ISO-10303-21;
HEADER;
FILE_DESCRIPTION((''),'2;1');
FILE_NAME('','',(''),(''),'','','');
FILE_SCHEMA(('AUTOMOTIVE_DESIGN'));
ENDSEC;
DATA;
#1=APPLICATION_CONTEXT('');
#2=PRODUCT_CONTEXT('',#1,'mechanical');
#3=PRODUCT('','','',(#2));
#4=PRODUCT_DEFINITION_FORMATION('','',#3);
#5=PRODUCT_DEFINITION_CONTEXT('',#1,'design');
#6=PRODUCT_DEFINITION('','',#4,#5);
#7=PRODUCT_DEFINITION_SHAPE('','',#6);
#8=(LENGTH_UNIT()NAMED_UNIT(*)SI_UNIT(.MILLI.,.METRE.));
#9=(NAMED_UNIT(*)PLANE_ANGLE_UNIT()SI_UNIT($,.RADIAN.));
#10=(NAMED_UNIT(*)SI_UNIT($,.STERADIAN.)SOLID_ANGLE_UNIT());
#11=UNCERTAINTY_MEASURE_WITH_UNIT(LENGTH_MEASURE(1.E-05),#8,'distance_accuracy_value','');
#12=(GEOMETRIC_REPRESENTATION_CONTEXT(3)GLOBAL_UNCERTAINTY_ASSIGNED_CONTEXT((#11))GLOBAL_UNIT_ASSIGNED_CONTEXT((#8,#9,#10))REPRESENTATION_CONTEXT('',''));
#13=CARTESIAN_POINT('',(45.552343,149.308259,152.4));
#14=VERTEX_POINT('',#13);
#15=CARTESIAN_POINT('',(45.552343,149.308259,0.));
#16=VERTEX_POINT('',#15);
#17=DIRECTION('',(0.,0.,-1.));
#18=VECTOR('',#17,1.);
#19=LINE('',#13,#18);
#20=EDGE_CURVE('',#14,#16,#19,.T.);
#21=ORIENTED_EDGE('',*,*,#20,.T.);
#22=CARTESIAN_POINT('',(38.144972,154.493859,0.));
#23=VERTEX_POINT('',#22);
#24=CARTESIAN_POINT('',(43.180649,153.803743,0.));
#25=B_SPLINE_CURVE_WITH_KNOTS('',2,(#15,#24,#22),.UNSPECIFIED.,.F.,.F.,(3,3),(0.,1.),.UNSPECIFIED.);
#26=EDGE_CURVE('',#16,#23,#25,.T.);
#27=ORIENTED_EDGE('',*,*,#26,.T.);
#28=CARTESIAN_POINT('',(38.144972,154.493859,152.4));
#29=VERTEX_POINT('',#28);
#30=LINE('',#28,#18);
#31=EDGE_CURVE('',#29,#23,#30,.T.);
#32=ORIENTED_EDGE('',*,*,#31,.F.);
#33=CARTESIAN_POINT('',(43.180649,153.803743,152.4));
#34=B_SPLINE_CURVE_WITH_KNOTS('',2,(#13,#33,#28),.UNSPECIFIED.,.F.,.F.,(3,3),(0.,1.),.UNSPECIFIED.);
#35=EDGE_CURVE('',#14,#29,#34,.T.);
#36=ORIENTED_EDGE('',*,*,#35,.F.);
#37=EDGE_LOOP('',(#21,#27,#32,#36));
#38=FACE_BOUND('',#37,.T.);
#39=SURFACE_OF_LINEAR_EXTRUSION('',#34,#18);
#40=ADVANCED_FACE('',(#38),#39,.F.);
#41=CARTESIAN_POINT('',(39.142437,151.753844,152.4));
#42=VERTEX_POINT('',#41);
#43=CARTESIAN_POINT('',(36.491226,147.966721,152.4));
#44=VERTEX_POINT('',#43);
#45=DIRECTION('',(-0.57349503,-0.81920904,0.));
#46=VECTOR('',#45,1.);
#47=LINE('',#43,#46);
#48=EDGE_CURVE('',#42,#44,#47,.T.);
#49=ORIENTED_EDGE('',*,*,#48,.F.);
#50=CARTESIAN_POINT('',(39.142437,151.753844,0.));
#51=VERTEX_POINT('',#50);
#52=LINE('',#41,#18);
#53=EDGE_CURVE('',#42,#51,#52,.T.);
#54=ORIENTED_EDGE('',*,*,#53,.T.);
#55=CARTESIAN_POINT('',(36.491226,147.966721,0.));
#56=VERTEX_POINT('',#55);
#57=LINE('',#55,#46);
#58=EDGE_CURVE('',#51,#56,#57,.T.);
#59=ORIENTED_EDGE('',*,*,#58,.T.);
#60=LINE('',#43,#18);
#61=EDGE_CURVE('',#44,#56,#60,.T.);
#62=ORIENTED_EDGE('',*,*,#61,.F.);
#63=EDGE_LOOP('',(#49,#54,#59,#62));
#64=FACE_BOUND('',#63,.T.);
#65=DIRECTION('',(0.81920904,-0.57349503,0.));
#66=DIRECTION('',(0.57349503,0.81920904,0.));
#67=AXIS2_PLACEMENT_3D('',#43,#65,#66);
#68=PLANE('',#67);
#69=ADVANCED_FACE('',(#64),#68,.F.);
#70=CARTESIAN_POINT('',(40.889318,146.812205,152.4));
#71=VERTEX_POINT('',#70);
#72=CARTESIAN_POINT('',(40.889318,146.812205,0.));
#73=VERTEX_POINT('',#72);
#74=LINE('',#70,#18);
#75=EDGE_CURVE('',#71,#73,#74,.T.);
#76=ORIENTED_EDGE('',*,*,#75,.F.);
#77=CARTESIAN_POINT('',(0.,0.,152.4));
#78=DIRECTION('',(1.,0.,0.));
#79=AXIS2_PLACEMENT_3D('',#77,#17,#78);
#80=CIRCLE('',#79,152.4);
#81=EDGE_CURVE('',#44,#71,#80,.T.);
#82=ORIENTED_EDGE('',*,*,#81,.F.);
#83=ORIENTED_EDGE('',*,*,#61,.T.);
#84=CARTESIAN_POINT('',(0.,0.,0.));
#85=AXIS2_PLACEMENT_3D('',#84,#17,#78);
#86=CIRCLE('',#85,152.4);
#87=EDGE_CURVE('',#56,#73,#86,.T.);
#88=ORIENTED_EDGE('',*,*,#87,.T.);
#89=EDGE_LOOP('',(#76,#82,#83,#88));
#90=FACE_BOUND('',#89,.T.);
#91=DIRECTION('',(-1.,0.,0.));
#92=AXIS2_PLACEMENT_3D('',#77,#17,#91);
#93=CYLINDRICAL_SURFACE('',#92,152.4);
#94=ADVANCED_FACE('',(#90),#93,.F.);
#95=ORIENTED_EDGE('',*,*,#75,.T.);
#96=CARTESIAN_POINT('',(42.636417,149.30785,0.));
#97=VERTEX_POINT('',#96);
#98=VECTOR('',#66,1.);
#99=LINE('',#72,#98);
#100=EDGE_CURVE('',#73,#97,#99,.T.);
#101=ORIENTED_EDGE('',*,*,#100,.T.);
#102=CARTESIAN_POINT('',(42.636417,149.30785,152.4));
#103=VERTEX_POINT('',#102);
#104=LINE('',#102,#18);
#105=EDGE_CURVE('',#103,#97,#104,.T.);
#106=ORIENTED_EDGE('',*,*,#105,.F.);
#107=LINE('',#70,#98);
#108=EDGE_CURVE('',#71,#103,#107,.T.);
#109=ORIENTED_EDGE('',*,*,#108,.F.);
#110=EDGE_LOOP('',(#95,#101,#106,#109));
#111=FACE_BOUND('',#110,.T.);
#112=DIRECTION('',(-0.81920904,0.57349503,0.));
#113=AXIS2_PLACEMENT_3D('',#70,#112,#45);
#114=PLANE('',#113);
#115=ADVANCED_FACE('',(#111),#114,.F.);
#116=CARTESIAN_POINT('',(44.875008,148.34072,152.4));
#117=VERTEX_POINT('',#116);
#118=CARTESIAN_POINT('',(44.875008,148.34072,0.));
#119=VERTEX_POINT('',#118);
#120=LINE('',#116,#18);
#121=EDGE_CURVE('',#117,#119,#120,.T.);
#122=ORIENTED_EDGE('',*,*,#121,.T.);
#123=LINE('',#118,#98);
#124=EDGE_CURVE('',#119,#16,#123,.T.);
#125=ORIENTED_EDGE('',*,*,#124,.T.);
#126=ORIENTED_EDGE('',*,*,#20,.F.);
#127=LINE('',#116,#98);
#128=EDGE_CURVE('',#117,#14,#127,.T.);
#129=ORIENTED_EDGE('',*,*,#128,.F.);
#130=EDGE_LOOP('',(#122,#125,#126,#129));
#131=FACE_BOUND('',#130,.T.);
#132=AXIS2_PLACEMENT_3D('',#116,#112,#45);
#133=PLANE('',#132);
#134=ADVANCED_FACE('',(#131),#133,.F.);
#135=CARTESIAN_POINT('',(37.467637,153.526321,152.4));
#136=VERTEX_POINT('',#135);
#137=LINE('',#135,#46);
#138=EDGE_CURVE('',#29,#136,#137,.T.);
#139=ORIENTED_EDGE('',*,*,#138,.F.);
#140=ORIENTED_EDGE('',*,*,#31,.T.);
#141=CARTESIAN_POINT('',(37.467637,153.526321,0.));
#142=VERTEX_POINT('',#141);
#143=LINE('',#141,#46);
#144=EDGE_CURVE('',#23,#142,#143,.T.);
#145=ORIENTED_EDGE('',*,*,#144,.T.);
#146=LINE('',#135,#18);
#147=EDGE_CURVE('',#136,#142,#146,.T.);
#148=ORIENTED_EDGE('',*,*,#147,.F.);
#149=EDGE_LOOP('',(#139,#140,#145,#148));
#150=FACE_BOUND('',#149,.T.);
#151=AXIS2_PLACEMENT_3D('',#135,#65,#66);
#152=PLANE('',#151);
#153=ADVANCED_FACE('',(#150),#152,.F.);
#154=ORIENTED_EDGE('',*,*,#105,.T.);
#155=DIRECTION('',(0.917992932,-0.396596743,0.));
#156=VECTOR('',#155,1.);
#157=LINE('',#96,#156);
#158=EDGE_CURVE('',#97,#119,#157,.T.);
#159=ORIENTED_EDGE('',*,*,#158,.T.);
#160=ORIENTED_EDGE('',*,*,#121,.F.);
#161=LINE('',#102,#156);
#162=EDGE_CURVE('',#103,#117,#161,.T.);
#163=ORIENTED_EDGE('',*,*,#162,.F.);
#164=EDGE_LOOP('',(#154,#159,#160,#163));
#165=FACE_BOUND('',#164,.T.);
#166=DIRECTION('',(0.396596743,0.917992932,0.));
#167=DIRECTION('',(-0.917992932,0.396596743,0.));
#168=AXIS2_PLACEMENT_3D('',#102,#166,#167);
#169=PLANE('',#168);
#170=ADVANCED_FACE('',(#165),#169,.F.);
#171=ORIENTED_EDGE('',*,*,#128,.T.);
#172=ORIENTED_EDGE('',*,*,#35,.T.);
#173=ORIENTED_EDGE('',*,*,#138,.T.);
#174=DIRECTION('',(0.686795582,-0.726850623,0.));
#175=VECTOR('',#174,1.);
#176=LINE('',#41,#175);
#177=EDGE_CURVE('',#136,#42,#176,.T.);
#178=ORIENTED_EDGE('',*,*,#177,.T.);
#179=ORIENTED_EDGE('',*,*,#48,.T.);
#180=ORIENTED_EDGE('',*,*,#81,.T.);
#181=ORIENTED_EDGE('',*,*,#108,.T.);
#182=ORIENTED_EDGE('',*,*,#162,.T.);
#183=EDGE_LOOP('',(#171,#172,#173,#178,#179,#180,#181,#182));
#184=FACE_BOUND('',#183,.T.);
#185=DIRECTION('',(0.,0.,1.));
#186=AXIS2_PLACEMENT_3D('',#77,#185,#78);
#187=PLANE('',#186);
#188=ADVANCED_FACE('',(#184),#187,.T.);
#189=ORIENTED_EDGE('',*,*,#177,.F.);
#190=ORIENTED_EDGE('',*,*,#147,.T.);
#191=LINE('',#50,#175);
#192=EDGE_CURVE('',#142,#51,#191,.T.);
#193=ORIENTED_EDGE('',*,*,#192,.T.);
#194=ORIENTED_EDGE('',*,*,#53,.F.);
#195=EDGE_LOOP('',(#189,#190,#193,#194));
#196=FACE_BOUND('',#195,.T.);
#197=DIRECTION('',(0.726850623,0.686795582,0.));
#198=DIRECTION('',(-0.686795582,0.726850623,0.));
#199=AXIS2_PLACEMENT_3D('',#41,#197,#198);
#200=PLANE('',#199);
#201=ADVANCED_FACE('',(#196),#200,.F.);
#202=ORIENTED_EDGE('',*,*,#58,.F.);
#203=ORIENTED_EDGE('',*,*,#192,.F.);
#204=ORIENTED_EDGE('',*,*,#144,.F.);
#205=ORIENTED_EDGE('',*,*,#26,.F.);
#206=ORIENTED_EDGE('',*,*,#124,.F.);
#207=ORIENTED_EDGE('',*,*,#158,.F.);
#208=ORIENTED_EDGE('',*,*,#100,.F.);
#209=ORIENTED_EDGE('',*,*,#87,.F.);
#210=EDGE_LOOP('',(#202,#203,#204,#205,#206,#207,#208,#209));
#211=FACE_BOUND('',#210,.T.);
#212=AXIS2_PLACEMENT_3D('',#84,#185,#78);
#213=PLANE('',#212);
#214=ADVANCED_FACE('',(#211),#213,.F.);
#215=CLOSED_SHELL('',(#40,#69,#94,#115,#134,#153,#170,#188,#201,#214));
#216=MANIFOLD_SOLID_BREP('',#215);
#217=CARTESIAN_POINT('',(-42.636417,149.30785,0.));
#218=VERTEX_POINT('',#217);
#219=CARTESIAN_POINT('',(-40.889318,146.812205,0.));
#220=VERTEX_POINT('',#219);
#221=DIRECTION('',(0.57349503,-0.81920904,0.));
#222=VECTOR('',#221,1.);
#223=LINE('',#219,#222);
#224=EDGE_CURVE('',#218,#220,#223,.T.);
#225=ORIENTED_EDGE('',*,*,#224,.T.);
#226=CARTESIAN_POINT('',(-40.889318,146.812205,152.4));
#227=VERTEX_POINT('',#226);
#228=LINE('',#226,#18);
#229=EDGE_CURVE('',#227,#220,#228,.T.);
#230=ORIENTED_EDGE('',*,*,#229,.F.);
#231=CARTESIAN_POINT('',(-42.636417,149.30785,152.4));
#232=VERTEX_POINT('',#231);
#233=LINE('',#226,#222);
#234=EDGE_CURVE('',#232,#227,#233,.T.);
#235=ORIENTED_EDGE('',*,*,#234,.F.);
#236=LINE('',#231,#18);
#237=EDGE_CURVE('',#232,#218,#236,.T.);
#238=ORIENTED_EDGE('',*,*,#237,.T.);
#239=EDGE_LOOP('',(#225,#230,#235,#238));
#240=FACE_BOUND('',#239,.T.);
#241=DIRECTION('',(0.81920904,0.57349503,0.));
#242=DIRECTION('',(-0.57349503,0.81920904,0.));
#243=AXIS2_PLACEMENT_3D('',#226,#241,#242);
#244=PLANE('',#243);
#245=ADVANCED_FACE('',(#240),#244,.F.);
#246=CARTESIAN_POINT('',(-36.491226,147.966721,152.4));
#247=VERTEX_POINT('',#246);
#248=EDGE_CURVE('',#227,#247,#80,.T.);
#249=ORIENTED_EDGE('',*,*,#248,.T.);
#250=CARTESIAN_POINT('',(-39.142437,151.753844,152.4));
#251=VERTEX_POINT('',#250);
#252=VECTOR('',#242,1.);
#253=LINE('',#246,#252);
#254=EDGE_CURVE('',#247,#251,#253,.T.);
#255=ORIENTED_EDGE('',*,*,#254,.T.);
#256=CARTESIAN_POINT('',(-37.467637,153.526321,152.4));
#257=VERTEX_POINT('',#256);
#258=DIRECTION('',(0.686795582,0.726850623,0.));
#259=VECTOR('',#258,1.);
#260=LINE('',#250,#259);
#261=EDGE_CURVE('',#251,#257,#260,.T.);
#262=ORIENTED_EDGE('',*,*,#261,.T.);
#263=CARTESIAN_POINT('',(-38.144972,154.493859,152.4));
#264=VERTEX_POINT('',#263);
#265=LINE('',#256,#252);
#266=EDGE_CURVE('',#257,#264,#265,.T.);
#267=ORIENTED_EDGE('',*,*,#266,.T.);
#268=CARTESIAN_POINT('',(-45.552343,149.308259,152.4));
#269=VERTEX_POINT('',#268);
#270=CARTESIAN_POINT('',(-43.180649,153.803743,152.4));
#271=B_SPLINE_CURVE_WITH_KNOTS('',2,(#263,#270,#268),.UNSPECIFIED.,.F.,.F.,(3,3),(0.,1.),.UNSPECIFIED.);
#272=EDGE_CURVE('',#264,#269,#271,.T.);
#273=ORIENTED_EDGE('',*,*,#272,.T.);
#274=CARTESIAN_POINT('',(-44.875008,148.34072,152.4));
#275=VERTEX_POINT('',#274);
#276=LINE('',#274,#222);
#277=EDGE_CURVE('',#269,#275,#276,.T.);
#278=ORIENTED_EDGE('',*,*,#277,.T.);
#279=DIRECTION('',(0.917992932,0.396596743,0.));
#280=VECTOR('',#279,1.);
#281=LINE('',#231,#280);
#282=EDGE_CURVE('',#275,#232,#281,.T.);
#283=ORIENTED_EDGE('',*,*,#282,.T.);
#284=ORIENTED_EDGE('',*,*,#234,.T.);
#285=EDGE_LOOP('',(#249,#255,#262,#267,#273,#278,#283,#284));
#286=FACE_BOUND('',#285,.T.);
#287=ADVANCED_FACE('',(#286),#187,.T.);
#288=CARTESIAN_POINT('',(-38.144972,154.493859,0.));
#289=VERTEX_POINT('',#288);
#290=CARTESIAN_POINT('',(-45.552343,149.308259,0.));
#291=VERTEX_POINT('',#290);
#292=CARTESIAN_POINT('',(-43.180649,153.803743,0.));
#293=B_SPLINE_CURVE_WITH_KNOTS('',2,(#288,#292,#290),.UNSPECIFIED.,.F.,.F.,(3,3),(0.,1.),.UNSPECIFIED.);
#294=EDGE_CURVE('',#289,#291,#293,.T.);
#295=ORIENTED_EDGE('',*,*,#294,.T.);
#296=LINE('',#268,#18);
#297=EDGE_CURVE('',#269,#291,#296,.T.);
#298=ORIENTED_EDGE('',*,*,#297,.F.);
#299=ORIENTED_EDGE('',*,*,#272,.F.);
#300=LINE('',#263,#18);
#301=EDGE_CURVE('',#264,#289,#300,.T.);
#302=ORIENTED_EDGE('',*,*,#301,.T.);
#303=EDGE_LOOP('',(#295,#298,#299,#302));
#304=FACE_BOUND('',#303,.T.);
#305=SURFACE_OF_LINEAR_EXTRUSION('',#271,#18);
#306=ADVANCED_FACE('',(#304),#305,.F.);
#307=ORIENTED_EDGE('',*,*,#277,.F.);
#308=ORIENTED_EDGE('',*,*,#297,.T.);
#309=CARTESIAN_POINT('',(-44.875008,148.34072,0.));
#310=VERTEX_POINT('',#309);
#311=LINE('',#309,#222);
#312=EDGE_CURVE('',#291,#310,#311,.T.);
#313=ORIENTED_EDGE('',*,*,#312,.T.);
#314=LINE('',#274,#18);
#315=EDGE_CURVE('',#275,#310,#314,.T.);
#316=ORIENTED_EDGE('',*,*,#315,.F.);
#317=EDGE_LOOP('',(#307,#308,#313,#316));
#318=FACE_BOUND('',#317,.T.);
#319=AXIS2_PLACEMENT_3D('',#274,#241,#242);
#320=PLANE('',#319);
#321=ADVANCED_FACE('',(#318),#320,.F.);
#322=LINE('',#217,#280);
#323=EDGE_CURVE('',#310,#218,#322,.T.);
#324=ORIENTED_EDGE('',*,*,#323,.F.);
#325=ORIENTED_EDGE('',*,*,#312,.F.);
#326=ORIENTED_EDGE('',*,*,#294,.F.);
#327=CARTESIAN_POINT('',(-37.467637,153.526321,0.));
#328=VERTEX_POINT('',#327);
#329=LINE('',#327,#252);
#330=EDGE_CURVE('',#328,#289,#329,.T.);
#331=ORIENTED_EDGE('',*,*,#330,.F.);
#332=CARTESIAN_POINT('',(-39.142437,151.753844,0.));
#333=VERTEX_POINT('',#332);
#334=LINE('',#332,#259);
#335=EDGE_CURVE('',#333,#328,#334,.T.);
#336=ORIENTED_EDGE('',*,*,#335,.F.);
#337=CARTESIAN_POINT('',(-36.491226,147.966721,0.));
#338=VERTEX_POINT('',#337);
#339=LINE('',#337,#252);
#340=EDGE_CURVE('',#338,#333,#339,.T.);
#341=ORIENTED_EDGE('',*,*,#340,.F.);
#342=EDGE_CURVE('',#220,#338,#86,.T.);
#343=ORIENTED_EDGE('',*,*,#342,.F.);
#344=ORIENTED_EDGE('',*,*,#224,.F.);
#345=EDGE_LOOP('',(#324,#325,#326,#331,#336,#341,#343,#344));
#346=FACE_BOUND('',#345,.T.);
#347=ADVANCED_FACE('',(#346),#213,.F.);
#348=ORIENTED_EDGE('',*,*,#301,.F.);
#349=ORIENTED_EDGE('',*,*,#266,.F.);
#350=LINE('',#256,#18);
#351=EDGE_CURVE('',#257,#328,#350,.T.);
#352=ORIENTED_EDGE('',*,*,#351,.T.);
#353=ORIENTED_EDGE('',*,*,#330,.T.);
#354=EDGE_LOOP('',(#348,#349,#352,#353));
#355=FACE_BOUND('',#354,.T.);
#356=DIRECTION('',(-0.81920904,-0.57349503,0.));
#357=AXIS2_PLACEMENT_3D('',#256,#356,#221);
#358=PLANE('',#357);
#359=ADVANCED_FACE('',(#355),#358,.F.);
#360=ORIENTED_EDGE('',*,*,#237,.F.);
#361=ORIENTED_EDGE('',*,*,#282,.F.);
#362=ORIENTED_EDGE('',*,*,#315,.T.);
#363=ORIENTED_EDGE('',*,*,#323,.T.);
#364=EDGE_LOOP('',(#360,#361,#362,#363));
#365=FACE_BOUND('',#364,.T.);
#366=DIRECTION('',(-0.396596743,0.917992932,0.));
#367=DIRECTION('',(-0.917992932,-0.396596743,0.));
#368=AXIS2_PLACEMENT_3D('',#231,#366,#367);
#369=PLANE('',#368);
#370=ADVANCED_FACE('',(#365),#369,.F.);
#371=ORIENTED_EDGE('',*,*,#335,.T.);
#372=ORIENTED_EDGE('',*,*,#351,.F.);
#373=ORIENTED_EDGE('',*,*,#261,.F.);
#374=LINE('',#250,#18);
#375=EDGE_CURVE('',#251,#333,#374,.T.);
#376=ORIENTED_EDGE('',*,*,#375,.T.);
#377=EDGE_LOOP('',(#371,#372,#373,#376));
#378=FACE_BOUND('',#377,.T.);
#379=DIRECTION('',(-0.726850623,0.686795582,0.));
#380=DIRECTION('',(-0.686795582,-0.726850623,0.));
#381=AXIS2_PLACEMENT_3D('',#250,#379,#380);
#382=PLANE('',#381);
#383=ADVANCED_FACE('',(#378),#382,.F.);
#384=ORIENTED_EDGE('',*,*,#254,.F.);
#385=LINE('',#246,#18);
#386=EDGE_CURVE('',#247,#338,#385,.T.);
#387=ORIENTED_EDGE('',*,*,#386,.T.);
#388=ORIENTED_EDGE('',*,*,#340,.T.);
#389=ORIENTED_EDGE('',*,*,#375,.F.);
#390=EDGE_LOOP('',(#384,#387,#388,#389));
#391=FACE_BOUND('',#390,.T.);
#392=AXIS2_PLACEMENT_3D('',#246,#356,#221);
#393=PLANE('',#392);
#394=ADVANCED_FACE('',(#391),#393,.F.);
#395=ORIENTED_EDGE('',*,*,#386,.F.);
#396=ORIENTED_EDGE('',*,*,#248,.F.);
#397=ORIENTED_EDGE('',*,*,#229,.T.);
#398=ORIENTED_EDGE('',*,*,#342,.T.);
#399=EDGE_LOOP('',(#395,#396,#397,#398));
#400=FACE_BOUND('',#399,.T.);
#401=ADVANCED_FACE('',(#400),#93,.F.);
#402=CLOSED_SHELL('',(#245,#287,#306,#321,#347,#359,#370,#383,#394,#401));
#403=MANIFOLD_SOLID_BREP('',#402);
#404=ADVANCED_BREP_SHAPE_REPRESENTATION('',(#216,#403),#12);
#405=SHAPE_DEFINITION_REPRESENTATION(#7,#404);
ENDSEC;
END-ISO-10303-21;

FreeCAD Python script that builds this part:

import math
import FreeCAD as App
import Part
import Sketcher
Q = App.Units.Quantity

doc = App.newDocument("Part")
body = doc.addObject("PartDesign::Body", "Body")

# Sketch on XY plane
sketch1 = body.newObject("Sketcher::SketchObject", "Sketch")
sketch1.AttachmentSupport = (doc.getObject("XY_Plane"), [""])
sketch1.MapMode = "FlatFace"
sketch1.addGeometry(Part.LineSegment(App.Vector(-36.491226, 147.966721, 0), App.Vector(-39.142437, 151.753844, 0)), False)
sketch1.addGeometry(Part.LineSegment(App.Vector(-39.142437, 151.753844, 0), App.Vector(-37.467637, 153.526321, 0)), False)
sketch1.addGeometry(Part.LineSegment(App.Vector(-37.467637, 153.526321, 0), App.Vector(-38.144972, 154.493859, 0)), False)
sketch1.addGeometry(Part.BSplineCurve([App.Vector(-45.552343, 149.308259, 0), App.Vector(-43.180649, 153.803743, 0), App.Vector(-38.144972, 154.493859, 0)], [3, 3], [0, 1], False, 2, [1, 1, 1], False), False)
sketch1.addGeometry(Part.LineSegment(App.Vector(-45.552343, 149.308259, 0), App.Vector(-44.875008, 148.34072, 0)), False)
sketch1.addGeometry(Part.LineSegment(App.Vector(-44.875008, 148.34072, 0), App.Vector(-42.636417, 149.30785, 0)), False)
sketch1.addGeometry(Part.LineSegment(App.Vector(-42.636417, 149.30785, 0), App.Vector(-40.889318, 146.812205, 0)), False)
sketch1.addGeometry(Part.ArcOfCircle(Part.Circle(App.Vector(0, 0, 0), App.Vector(0, 0, 1), 152.4), math.radians(103.853712), math.radians(105.563287)), False)
sketch1.addConstraint(Sketcher.Constraint("Block", 3))
sketch1.addConstraint(Sketcher.Constraint("Coincident", 0, 2, 1, 1))
sketch1.addConstraint(Sketcher.Constraint("Coincident", 1, 2, 2, 1))
sketch1.addConstraint(Sketcher.Constraint("Coincident", 2, 2, 3, 2))
sketch1.addConstraint(Sketcher.Constraint("Coincident", 3, 1, 4, 1))
sketch1.addConstraint(Sketcher.Constraint("Coincident", 4, 2, 5, 1))
sketch1.addConstraint(Sketcher.Constraint("Coincident", 5, 2, 6, 1))
sketch1.addConstraint(Sketcher.Constraint("Coincident", 6, 2, 7, 2))
sketch1.addConstraint(Sketcher.Constraint("Coincident", 7, 1, 0, 1))
sketch1.addConstraint(Sketcher.Constraint("Coincident", 7, 3, -1, 1))
sketch1.addConstraint(Sketcher.Constraint("Radius", 7, Q("6 in")))
sketch1.addConstraint(Sketcher.Constraint("Distance", 0, 4.622902))
sketch1.addConstraint(Sketcher.Constraint("DistanceX", 0, 2, 1, 2, 1.6748))
sketch1.addConstraint(Sketcher.Constraint("DistanceY", 4, 2, 1, 2, 5.1856))
sketch1.addConstraint(Sketcher.Constraint("DistanceX", 5, 2, 6, 2, 1.747099))
sketch1.addConstraint(Sketcher.Constraint("DistanceY", 7, 1, 1, 2, 5.5596))
sketch1.addConstraint(Sketcher.Constraint("Distance", 1, 2.438571))
sketch1.addConstraint(Sketcher.Constraint("Distance", 5, 2.438571))
sketch1.addConstraint(Sketcher.Constraint("DistanceY", -1, 1, 1, 2, 153.526321))
sketch1.addConstraint(Sketcher.Constraint("DistanceX", 4, 2, -1, 1, 44.875008))
sketch1.addConstraint(Sketcher.Constraint("DistanceY", -1, 1, 5, 2, 149.30785))
pad1 = body.newObject("PartDesign::Pad", "Pad")
pad1.Profile = sketch1
pad1.Length = Q("6 in")
body2 = doc.addObject("PartDesign::Body", "Body001")

# Sketch on XY plane
sketch2 = body2.newObject("Sketcher::SketchObject", "Sketch001")
sketch2.AttachmentSupport = (doc.getObject("XY_Plane001"), [""])
sketch2.MapMode = "FlatFace"
sketch2.addGeometry(Part.LineSegment(App.Vector(39.142437, 151.753844, 0), App.Vector(36.491226, 147.966721, 0)), False)
sketch2.addGeometry(Part.ArcOfCircle(Part.Circle(App.Vector(0, 0, 0), App.Vector(0, 0, 1), 152.4), math.radians(74.436713), math.radians(76.146288)), False)
sketch2.addGeometry(Part.LineSegment(App.Vector(40.889318, 146.812205, 0), App.Vector(42.636417, 149.30785, 0)), False)
sketch2.addGeometry(Part.LineSegment(App.Vector(42.636417, 149.30785, 0), App.Vector(44.875008, 148.34072, 0)), False)
sketch2.addGeometry(Part.LineSegment(App.Vector(44.875008, 148.34072, 0), App.Vector(45.552343, 149.308259, 0)), False)
sketch2.addGeometry(Part.BSplineCurve([App.Vector(45.552343, 149.308259, 0), App.Vector(43.180649, 153.803743, 0), App.Vector(38.144972, 154.493859, 0)], [3, 3], [0, 1], False, 2, [1, 1, 1], False), False)
sketch2.addGeometry(Part.LineSegment(App.Vector(38.144972, 154.493859, 0), App.Vector(37.467637, 153.526321, 0)), False)
sketch2.addGeometry(Part.LineSegment(App.Vector(37.467637, 153.526321, 0), App.Vector(39.142437, 151.753844, 0)), False)
sketch2.addConstraint(Sketcher.Constraint("Block", 5))
sketch2.addConstraint(Sketcher.Constraint("Coincident", 0, 2, 1, 2))
sketch2.addConstraint(Sketcher.Constraint("Coincident", 1, 1, 2, 1))
sketch2.addConstraint(Sketcher.Constraint("Coincident", 2, 2, 3, 1))
sketch2.addConstraint(Sketcher.Constraint("Coincident", 3, 2, 4, 1))
sketch2.addConstraint(Sketcher.Constraint("Coincident", 4, 2, 5, 1))
sketch2.addConstraint(Sketcher.Constraint("Coincident", 5, 2, 6, 1))
sketch2.addConstraint(Sketcher.Constraint("Coincident", 6, 2, 7, 1))
sketch2.addConstraint(Sketcher.Constraint("Coincident", 7, 2, 0, 1))
sketch2.addConstraint(Sketcher.Constraint("Coincident", 1, 3, -1, 1))
sketch2.addConstraint(Sketcher.Constraint("Parallel", 0, 2))
sketch2.addConstraint(Sketcher.Constraint("Parallel", 2, 4))
sketch2.addConstraint(Sketcher.Constraint("Parallel", 4, 6))
sketch2.addConstraint(Sketcher.Constraint("Equal", 4, 6))
sketch2.addConstraint(Sketcher.Constraint("Equal", 3, 7))
sketch2.addConstraint(Sketcher.Constraint("Radius", 1, Q("6 in")))
sketch2.addConstraint(Sketcher.Constraint("Distance", 0, 4.622902))
sketch2.addConstraint(Sketcher.Constraint("DistanceX", 1, 1, 2, 2, 1.747099))
sketch2.addConstraint(Sketcher.Constraint("DistanceY", 0, 2, 3, 2, 0.374))
sketch2.addConstraint(Sketcher.Constraint("DistanceX", 6, 2, 7, 2, 1.6748))
sketch2.addConstraint(Sketcher.Constraint("Distance", 3, 2.438571))
pad2 = body2.newObject("PartDesign::Pad", "Pad001")
pad2.Profile = sketch2
pad2.Length = Q("6 in")

doc.recompute()
